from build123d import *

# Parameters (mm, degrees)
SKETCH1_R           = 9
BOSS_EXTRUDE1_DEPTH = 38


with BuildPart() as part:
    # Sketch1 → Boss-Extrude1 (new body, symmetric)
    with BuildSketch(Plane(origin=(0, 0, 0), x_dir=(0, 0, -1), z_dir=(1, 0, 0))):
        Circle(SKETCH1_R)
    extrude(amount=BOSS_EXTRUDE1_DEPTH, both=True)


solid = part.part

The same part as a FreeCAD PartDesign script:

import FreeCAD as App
import Part
import Sketcher

doc = App.newDocument("Part")
params = doc.addObject("Spreadsheet::Sheet", "Params")
for row, (alias, value) in enumerate([
    ("sketch1_diameter", "18 mm"),
    ("pad1_length", "76 mm"),
], start=1):
    params.set(f"A{row}", alias)
    params.set(f"B{row}", "=" + value)
    params.setAlias(f"B{row}", alias)

body = doc.addObject("PartDesign::Body", "Body")

sketch1 = doc.addObject("Sketcher::SketchObject", "Sketch")
body.addObject(sketch1)
sketch1.AttachmentSupport = (doc.YZ_Plane, [""])
sketch1.MapMode = "FlatFace"
sketch1.addGeometry(Part.Circle(App.Vector(0, 0, 0), App.Vector(0, 0, 1), 9), False)
sketch1.addConstraint([
    Sketcher.Constraint("Coincident", 0, 3, -1, 1),
    Sketcher.Constraint("Diameter", 0, 18.0),
])
sketch1.setExpression("Constraints[1]", "Params.sketch1_diameter")
pad1 = doc.addObject("PartDesign::Pad", "Pad")
body.addObject(pad1)
pad1.Profile = sketch1
pad1.setExpression("Length", "Params.pad1_length")
pad1.Midplane = True

doc.recompute()
